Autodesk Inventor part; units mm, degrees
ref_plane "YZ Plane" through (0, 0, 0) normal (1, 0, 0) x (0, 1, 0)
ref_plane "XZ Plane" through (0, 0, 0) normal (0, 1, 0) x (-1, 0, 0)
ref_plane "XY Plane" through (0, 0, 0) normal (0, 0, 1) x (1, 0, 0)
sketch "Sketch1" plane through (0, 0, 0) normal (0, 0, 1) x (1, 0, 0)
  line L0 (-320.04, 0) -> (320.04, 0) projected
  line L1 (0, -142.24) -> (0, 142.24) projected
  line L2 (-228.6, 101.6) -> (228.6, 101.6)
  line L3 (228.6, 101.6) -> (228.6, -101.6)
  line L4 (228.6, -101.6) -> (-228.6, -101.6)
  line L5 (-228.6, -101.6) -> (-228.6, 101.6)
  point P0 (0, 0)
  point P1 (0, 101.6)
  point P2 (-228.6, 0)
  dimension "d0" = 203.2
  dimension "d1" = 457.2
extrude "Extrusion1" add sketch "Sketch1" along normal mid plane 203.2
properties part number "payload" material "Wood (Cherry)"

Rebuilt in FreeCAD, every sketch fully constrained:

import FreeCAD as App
import Part
import Sketcher
Q = App.Units.Quantity


def add_polygon(sketch, points):
    """Adds a closed chain of lines whose ends are joined by coincident constraints."""
    first, n = sketch.GeometryCount, len(points)
    for a, b in zip(points, points[1:] + points[:1]):
        sketch.addGeometry(Part.LineSegment(App.Vector(*a, 0), App.Vector(*b, 0)), False)
    for i in range(n):
        sketch.addConstraint(Sketcher.Constraint("Coincident", first + i, 2, first + (i + 1) % n, 1))

doc = App.newDocument("Part")
params = doc.addObject("Spreadsheet::Sheet", "Params")
for row, (alias, value) in enumerate([
    ("sketch1_width", "18 in"),
    ("sketch1_height", "8 in"),
    ("pad1_length", "8 in"),
], start=1):
    params.set(f"A{row}", alias)
    params.set(f"B{row}", "=" + value)
    params.setAlias(f"B{row}", alias)

body = doc.addObject("PartDesign::Body", "Body")

# Sketch on XY plane
sketch1 = body.newObject("Sketcher::SketchObject", "Sketch")
sketch1.AttachmentSupport = (doc.getObject("XY_Plane"), [""])
sketch1.MapMode = "FlatFace"
add_polygon(sketch1, [(-229, 102), (-229, -102), (229, -102), (229, 102)])  # lines 0-3
sketch1.addConstraint(Sketcher.Constraint("Vertical", 0))
sketch1.addConstraint(Sketcher.Constraint("Horizontal", 1))
sketch1.addConstraint(Sketcher.Constraint("Vertical", 2))
sketch1.addConstraint(Sketcher.Constraint("Horizontal", 3))
sketch1.addConstraint(Sketcher.Constraint("Symmetric", 0, 2, 2, 2, -1, 1))
sketch1.addConstraint(Sketcher.Constraint("DistanceX", 1, 1, 1, 2, Q("18 in")))
sketch1.addConstraint(Sketcher.Constraint("DistanceY", 0, 2, 0, 1, Q("8 in")))
sketch1.setExpression("Constraints[9]", "Params.sketch1_width")
sketch1.setExpression("Constraints[10]", "Params.sketch1_height")
pad1 = body.newObject("PartDesign::Pad", "Pad")
pad1.Profile = sketch1
pad1.setExpression("Length", "Params.pad1_length")
pad1.Midplane = True

doc.recompute()
